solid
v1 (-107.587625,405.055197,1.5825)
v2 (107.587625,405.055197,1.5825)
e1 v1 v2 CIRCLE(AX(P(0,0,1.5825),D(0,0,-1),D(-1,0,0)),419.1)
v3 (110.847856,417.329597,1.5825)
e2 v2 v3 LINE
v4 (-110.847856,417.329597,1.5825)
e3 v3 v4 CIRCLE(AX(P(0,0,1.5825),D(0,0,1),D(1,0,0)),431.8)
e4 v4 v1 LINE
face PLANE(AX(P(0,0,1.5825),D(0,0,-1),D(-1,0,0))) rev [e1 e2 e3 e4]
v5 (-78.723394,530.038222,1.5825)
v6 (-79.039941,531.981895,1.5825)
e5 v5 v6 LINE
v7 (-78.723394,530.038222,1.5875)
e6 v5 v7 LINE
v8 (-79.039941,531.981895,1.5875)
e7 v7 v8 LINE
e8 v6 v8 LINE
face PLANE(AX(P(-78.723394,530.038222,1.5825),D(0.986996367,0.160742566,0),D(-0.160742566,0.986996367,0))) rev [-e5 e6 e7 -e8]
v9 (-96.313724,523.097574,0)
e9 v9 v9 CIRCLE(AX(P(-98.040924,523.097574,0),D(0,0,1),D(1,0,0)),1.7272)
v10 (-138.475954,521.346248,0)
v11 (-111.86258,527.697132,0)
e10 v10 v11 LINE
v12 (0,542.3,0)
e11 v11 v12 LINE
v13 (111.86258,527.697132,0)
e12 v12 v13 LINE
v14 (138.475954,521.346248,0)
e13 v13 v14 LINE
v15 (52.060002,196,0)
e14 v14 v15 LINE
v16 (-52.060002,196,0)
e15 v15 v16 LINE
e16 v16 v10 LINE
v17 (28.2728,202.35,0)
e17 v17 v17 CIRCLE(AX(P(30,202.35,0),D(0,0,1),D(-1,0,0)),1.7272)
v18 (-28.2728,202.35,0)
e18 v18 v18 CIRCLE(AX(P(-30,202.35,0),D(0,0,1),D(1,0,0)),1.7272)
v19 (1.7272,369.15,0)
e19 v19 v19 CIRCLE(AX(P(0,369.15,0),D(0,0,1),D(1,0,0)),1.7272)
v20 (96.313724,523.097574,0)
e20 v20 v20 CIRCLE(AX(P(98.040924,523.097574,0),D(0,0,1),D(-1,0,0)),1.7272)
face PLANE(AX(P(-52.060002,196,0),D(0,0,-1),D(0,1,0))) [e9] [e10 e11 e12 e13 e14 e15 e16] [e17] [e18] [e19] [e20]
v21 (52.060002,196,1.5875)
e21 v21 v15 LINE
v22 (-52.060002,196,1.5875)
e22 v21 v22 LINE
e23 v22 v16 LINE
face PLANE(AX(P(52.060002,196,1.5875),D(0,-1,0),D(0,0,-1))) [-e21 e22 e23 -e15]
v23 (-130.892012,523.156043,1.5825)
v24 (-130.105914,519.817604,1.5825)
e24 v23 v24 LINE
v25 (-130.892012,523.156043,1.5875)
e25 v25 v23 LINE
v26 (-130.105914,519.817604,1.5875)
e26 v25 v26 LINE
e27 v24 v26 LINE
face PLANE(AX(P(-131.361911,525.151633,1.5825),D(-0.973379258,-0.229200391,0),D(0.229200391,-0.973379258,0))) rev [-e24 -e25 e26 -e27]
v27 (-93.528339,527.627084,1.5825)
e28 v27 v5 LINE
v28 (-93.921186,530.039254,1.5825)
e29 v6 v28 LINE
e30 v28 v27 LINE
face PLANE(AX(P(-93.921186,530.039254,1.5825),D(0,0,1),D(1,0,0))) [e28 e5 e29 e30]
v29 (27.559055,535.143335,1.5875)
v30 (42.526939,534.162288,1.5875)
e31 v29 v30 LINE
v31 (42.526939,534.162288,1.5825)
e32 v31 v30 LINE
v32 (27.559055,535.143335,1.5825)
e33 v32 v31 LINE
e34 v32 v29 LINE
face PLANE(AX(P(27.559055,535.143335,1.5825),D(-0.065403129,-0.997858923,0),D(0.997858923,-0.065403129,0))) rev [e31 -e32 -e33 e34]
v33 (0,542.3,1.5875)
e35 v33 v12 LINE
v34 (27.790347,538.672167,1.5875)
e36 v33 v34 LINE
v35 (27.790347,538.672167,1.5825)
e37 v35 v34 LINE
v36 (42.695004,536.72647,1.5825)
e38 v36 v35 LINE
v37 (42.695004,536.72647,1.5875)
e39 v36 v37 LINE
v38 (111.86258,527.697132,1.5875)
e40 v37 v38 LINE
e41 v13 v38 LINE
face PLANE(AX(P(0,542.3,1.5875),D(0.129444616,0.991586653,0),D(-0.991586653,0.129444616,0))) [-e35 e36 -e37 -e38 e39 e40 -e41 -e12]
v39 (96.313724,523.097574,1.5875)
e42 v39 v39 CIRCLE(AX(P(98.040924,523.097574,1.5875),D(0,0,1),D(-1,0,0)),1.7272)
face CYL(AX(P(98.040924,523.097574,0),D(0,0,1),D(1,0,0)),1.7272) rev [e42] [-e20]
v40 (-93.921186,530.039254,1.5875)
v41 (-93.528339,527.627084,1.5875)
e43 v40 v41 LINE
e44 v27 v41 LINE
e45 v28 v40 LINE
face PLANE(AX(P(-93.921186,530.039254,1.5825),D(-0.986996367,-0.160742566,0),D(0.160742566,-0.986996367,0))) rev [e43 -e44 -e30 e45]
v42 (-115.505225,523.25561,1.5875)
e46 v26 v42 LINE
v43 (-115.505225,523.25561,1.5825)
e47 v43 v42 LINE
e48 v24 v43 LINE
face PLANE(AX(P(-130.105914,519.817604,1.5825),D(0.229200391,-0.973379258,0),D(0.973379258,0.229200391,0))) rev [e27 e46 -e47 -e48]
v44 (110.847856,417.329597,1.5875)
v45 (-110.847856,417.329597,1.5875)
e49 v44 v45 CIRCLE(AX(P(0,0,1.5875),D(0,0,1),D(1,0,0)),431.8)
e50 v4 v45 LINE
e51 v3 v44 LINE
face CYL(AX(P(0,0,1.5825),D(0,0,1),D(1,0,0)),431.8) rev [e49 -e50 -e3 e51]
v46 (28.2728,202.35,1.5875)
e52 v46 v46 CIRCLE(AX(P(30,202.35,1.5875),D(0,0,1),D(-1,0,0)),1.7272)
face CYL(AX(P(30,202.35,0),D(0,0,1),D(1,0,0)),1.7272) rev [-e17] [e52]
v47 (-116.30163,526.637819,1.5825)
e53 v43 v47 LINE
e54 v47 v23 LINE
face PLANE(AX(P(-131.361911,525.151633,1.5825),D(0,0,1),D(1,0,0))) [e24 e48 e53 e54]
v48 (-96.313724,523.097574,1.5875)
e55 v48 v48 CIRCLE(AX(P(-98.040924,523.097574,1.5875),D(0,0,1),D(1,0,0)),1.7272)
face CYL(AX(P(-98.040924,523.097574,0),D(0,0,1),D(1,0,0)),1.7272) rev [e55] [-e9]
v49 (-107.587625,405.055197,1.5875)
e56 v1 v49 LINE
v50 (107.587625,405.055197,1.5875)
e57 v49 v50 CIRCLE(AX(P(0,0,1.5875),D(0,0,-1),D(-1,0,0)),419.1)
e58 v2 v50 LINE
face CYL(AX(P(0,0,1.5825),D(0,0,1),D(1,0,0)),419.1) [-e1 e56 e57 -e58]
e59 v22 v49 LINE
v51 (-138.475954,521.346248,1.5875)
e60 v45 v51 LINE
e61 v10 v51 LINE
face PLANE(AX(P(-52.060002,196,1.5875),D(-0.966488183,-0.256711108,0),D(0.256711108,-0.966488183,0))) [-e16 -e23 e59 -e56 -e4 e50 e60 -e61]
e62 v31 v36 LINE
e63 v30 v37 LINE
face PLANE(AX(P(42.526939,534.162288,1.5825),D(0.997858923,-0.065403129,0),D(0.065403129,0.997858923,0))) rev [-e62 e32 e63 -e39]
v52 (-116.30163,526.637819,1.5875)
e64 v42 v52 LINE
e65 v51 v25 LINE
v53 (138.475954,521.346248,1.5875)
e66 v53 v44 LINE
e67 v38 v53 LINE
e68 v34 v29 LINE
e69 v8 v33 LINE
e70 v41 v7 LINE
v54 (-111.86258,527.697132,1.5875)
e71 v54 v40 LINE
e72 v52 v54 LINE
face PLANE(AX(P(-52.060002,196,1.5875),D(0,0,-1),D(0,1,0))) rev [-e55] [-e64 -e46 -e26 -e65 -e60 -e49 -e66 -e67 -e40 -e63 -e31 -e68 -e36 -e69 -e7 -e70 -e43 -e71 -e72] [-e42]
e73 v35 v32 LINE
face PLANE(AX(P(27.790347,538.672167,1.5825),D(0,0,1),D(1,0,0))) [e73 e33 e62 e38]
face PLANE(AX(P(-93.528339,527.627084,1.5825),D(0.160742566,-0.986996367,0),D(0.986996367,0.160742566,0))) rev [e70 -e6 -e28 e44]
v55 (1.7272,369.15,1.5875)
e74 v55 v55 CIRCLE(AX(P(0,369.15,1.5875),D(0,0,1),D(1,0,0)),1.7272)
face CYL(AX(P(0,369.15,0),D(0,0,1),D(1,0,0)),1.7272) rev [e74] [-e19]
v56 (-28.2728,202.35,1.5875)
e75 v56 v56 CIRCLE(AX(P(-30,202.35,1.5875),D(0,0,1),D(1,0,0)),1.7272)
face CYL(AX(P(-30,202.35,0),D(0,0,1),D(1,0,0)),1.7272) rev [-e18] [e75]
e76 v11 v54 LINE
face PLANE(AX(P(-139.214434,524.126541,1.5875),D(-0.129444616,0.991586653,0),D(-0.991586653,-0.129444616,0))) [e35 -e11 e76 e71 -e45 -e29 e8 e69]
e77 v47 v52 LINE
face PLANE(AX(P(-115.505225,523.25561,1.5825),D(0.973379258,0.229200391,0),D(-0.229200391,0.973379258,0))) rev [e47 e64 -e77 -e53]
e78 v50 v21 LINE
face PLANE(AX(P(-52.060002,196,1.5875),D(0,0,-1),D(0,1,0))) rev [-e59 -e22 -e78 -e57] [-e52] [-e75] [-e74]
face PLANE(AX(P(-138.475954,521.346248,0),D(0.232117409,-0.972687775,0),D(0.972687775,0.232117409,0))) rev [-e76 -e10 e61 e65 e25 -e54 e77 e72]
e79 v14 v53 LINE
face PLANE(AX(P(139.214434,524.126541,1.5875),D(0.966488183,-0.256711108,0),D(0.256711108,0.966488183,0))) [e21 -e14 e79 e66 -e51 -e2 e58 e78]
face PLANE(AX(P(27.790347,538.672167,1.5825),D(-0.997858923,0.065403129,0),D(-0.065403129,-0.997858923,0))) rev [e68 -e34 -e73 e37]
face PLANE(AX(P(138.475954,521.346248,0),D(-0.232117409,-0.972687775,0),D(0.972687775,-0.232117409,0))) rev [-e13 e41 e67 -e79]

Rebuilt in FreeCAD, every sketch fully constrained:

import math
import FreeCAD as App
import Part
import Sketcher
Q = App.Units.Quantity

doc = App.newDocument("Part")
body = doc.addObject("PartDesign::Body", "Body")

# Sketch on XY plane
sketch1 = doc.addObject("Sketcher::SketchObject", "Sketch")
body.addObject(sketch1)
sketch1.AttachmentSupport = (doc.XY_Plane, [""])
sketch1.MapMode = "FlatFace"
sketch1.addGeometry([
    Part.LineSegment(App.Vector(139, 524, 0), App.Vector(52, 196, 0)),  # 0
    Part.LineSegment(App.Vector(52, 196, 0), App.Vector(-52, 196, 0)),  # 1
    Part.LineSegment(App.Vector(-52, 196, 0), App.Vector(-139, 524, 0)),  # 2
    Part.LineSegment(App.Vector(-139, 524, 0), App.Vector(0, 542, 0)),  # 3
    Part.LineSegment(App.Vector(0, 542, 0), App.Vector(139, 524, 0)),  # 4
], False)
sketch1.addConstraint([
    Sketcher.Constraint("Coincident", 0, 2, 1, 1),
    Sketcher.Constraint("Coincident", 1, 2, 2, 1),
    Sketcher.Constraint("Coincident", 2, 2, 3, 1),
    Sketcher.Constraint("Coincident", 3, 2, 4, 1),
    Sketcher.Constraint("Coincident", 4, 2, 0, 1),
    Sketcher.Constraint("Horizontal", 1),
    Sketcher.Constraint("Symmetric", 2, 2, 4, 2, -2),
    Sketcher.Constraint("PointOnObject", 3, 2, -2),
    Sketcher.Constraint("Equal", 0, 2),
    Sketcher.Constraint("DistanceY", -1, 1, 0, 2, Q("196 mm")),
    Sketcher.Constraint("DistanceY", -1, 1, 3, 2, Q("542.3 mm")),
    Sketcher.Constraint("Distance", 3, Q("140.395631 mm")),
    Sketcher.Constraint("DistanceX", 1, 2, 1, 1, Q("104.120005 mm")),
    Sketcher.Constraint("DistanceY", -1, 1, 2, 2, Q("524.126541 mm")),
])
pad1 = doc.addObject("PartDesign::Pad", "Pad")
body.addObject(pad1)
pad1.Profile = sketch1
pad1.Length = Q("0.0625 in")

# Sketch on XY plane
sketch2 = doc.addObject("Sketcher::SketchObject", "Sketch001")
body.addObject(sketch2)
sketch2.AttachmentSupport = (doc.XY_Plane, [""])
sketch2.MapMode = "FlatFace"
sketch2.AttachmentOffset = App.Placement(App.Vector(0, 0, 0.0625 * 25.4), App.Rotation())
sketch2.addGeometry([
    Part.LineSegment(App.Vector(-138.5, 521.3, 0), App.Vector(-111.9, 527.7, 0)),  # 0
    Part.LineSegment(App.Vector(-111.9, 527.7, 0), App.Vector(-139.2, 524.1, 0)),  # 1
    Part.LineSegment(App.Vector(-139.2, 524.1, 0), App.Vector(-138.5, 521.3, 0)),  # 2
    Part.LineSegment(App.Vector(138.5, 521.3, 0), App.Vector(139.2, 524.1, 0)),  # 3
    Part.LineSegment(App.Vector(139.2, 524.1, 0), App.Vector(111.9, 527.7, 0)),  # 4
    Part.LineSegment(App.Vector(111.9, 527.7, 0), App.Vector(138.5, 521.3, 0)),  # 5
], False)
sketch2.addConstraint([
    Sketcher.Constraint("Coincident", 0, 2, 1, 1),
    Sketcher.Constraint("Coincident", 1, 2, 2, 1),
    Sketcher.Constraint("Coincident", 2, 2, 0, 1),
    Sketcher.Constraint("Coincident", 3, 2, 4, 1),
    Sketcher.Constraint("Coincident", 4, 2, 5, 1),
    Sketcher.Constraint("Coincident", 5, 2, 3, 1),
    Sketcher.Constraint("Symmetric", 1, 2, 3, 2, -2),
    Sketcher.Constraint("Symmetric", 0, 2, 4, 2, -2),
    Sketcher.Constraint("Symmetric", 2, 2, 5, 2, -2),
    Sketcher.Constraint("DistanceX", 0, 2, -1, 1, Q("111.86258 mm")),
    Sketcher.Constraint("DistanceY", -1, 1, 1, 2, Q("524.126541 mm")),
    Sketcher.Constraint("DistanceY", -1, 1, 2, 2, Q("521.346248 mm")),
    Sketcher.Constraint("DistanceY", 1, 2, 0, 2, Q("3.570591 mm")),
    Sketcher.Constraint("DistanceX", 1, 2, 2, 2, Q("0.73848 mm")),
    Sketcher.Constraint("Distance", 0, Q("27.360654 mm")),
])
pocket1 = doc.addObject("PartDesign::Pocket", "Pocket")
body.addObject(pocket1)
pocket1.Profile = sketch2
pocket1.Type = "ThroughAll"

# Sketch on XY plane
sketch3 = doc.addObject("Sketcher::SketchObject", "Sketch002")
body.addObject(sketch3)
sketch3.AttachmentSupport = (doc.XY_Plane, [""])
sketch3.MapMode = "FlatFace"
sketch3.AttachmentOffset = App.Placement(App.Vector(0, 0, 0.0625 * 25.4), App.Rotation())
sketch3.addGeometry([
    Part.Circle(App.Vector(-98, 523.1, 0), App.Vector(0, 0, 1), 1.7),  # 0
    Part.Circle(App.Vector(-30, 202.3, 0), App.Vector(0, 0, 1), 1.7),  # 1
    Part.Circle(App.Vector(30, 202.3, 0), App.Vector(0, 0, 1), 1.7),  # 2
    Part.Circle(App.Vector(98, 523.1, 0), App.Vector(0, 0, 1), 1.7),  # 3
    Part.Circle(App.Vector(0, 369.1, 0), App.Vector(0, 0, 1), 1.7),  # 4
], False)
sketch3.addConstraint([
    Sketcher.Constraint("Equal", 0, 1),
    Sketcher.Constraint("Equal", 1, 2),
    Sketcher.Constraint("Equal", 2, 3),
    Sketcher.Constraint("Equal", 3, 4),
    Sketcher.Constraint("Symmetric", 1, 3, 2, 3, -2),
    Sketcher.Constraint("Symmetric", 0, 3, 3, 3, -2),
    Sketcher.Constraint("PointOnObject", 4, 3, -2),
    Sketcher.Constraint("Diameter", 0, Q("0.136 in")),
    Sketcher.Constraint("DistanceX", 1, 3, -1, 1, Q("30 mm")),
    Sketcher.Constraint("DistanceY", -1, 1, 1, 3, Q("202.35 mm")),
    Sketcher.Constraint("DistanceY", -1, 1, 4, 3, Q("369.15 mm")),
    Sketcher.Constraint("DistanceX", 0, 3, 3, 3, Q("196.081849 mm")),
    Sketcher.Constraint("DistanceY", -1, 1, 0, 3, Q("523.097574 mm")),
])
pocket2 = doc.addObject("PartDesign::Pocket", "Pocket001")
body.addObject(pocket2)
pocket2.Profile = sketch3
pocket2.Type = "ThroughAll"

# Sketch on XY plane
sketch4 = doc.addObject("Sketcher::SketchObject", "Sketch003")
body.addObject(sketch4)
sketch4.AttachmentSupport = (doc.XY_Plane, [""])
sketch4.MapMode = "FlatFace"
sketch4.AttachmentOffset = App.Placement(App.Vector(0, 0, 0.0625 * 25.4), App.Rotation())
sketch4.addGeometry([
    Part.LineSegment(App.Vector(107.6, 405.1, 0), App.Vector(110.8, 417.3, 0)),  # 0
    Part.ArcOfCircle(Part.Circle(App.Vector(0, 0, 0), App.Vector(0, 0, 1), 431.8), math.radians(75), math.radians(105)),  # 1
    Part.LineSegment(App.Vector(-110.8, 417.3, 0), App.Vector(-107.6, 405.1, 0)),  # 2
    Part.ArcOfCircle(Part.Circle(App.Vector(0, 0, 0), App.Vector(0, 0, 1), 419.1), math.radians(75), math.radians(105)),  # 3
    Part.LineSegment(App.Vector(-93.9, 530, 0), App.Vector(-93.5, 527.6, 0)),  # 4
    Part.LineSegment(App.Vector(-93.5, 527.6, 0), App.Vector(-78.7, 530, 0)),  # 5
    Part.LineSegment(App.Vector(-78.7, 530, 0), App.Vector(-79, 532, 0)),  # 6
    Part.LineSegment(App.Vector(-79, 532, 0), App.Vector(-93.9, 530, 0)),  # 7
    Part.LineSegment(App.Vector(27.8, 538.7, 0), App.Vector(27.6, 535.1, 0)),  # 8
    Part.LineSegment(App.Vector(27.6, 535.1, 0), App.Vector(42.5, 534.2, 0)),  # 9
    Part.LineSegment(App.Vector(42.5, 534.2, 0), App.Vector(42.7, 536.7, 0)),  # 10
    Part.LineSegment(App.Vector(42.7, 536.7, 0), App.Vector(27.8, 538.7, 0)),  # 11
    Part.LineSegment(App.Vector(-131.4, 525.2, 0), App.Vector(-130.1, 519.8, 0)),  # 12
    Part.LineSegment(App.Vector(-130.1, 519.8, 0), App.Vector(-115.5, 523.3, 0)),  # 13
    Part.LineSegment(App.Vector(-115.5, 523.3, 0), App.Vector(-116.4, 527.1, 0)),  # 14
    Part.LineSegment(App.Vector(-116.4, 527.1, 0), App.Vector(-131.4, 525.2, 0)),  # 15
], False)
sketch4.addConstraint([
    Sketcher.Constraint("Coincident", 0, 2, 1, 1),
    Sketcher.Constraint("Coincident", 1, 2, 2, 1),
    Sketcher.Constraint("Coincident", 2, 2, 3, 2),
    Sketcher.Constraint("Coincident", 3, 1, 0, 1),
    Sketcher.Constraint("Coincident", 4, 2, 5, 1),
    Sketcher.Constraint("Coincident", 5, 2, 6, 1),
    Sketcher.Constraint("Coincident", 6, 2, 7, 1),
    Sketcher.Constraint("Coincident", 7, 2, 4, 1),
    Sketcher.Constraint("Coincident", 8, 2, 9, 1),
    Sketcher.Constraint("Coincident", 9, 2, 10, 1),
    Sketcher.Constraint("Coincident", 10, 2, 11, 1),
    Sketcher.Constraint("Coincident", 11, 2, 8, 1),
    Sketcher.Constraint("Coincident", 12, 2, 13, 1),
    Sketcher.Constraint("Coincident", 13, 2, 14, 1),
    Sketcher.Constraint("Coincident", 14, 2, 15, 1),
    Sketcher.Constraint("Coincident", 15, 2, 12, 1),
    Sketcher.Constraint("Coincident", 1, 3, -1, 1),
    Sketcher.Constraint("Coincident", 3, 3, -1, 1),
    Sketcher.Constraint("Perpendicular", 4, 5),
    Sketcher.Constraint("Perpendicular", 5, 6),
    Sketcher.Constraint("Perpendicular", 8, 9),
    Sketcher.Constraint("Perpendicular", 9, 10),
    Sketcher.Constraint("Perpendicular", 12, 13),
    Sketcher.Constraint("Perpendicular", 13, 14),
    Sketcher.Constraint("Parallel", 7, 15),
    Sketcher.Constraint("Horizontal", 0, 2, 1, 2),
    Sketcher.Constraint("Horizontal", 2, 2, 3, 1),
    Sketcher.Constraint("Equal", 5, 9),
    Sketcher.Constraint("Equal", 9, 13),
    Sketcher.Constraint("Radius", 1, Q("17 in")),
    Sketcher.Constraint("Radius", 3, Q("16.5 in")),
    Sketcher.Constraint("Angle", 4, Q("-80.75 deg")),
    Sketcher.Constraint("Angle", 8, Q("-93.75 deg")),
    Sketcher.Constraint("Angle", 12, Q("-76.75 deg")),
    Sketcher.Constraint("DistanceY", -1, 1, 14, 2, Q("20.7520999 in")),
    Sketcher.Constraint("DistanceX", 9, 2, 0, 2, Q("2.6897999 in")),
    Sketcher.Constraint("Distance", 5, Q("15 mm")),
    Sketcher.Constraint("DistanceY", 2, 2, 0, 2, Q("12.2744 mm")),
    Sketcher.Constraint("DistanceX", 4, 2, 6, 2, Q("14.488398 mm")),
    Sketcher.Constraint("DistanceY", 1, 2, 6, 2, Q("114.652298 mm")),
    Sketcher.Constraint("Distance", 4, Q("2.44395 mm")),
    Sketcher.Constraint("Distance", 11, Q("15.031119 mm")),
    Sketcher.Constraint("Distance", 12, Q("5.479908 mm")),
    Sketcher.Constraint("DistanceX", 4, 2, -1, 1, Q("93.528339 mm")),
    Sketcher.Constraint("DistanceX", -1, 1, 9, 2, Q("42.526939 mm")),
    Sketcher.Constraint("DistanceY", -1, 1, 10, 2, Q("536.72647 mm")),
    Sketcher.Constraint("DistanceX", 15, 2, -1, 1, Q("131.361911 mm")),
    Sketcher.Constraint("DistanceY", 6, 2, 8, 2, Q("3.161439 mm")),
])
pocket3 = doc.addObject("PartDesign::Pocket", "Pocket002")
body.addObject(pocket3)
pocket3.Profile = sketch4
pocket3.Length = 0.005

doc.recompute()
